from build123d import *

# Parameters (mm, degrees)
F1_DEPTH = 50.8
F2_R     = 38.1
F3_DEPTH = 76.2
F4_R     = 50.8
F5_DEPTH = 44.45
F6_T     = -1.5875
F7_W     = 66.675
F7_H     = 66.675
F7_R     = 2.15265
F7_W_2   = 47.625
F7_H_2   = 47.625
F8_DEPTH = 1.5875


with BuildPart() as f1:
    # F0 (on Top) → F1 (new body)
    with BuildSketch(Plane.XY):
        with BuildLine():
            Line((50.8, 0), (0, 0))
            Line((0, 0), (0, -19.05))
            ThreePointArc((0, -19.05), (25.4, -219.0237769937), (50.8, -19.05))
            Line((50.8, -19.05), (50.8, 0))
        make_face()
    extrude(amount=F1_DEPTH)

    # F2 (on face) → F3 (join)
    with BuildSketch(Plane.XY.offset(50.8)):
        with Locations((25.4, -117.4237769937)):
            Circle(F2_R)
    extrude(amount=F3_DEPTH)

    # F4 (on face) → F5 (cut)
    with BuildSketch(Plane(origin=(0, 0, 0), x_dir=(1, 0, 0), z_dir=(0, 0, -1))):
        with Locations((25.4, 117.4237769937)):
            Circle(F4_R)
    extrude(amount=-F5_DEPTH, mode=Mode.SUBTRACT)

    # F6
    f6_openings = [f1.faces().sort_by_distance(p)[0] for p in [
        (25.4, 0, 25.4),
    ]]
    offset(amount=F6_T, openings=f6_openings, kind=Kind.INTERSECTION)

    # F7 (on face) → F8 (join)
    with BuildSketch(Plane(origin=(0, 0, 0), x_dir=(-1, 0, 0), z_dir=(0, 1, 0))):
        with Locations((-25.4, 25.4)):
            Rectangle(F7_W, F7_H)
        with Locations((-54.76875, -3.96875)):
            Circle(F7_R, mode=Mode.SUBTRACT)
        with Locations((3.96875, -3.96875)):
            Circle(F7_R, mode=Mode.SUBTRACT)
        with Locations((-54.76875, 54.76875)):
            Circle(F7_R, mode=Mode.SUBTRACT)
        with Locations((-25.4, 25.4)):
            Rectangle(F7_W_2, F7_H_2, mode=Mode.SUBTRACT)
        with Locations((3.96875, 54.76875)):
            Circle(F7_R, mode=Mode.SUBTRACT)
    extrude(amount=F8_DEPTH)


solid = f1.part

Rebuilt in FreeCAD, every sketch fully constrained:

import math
import FreeCAD as App
import Part
import Sketcher
Q = App.Units.Quantity


def faces_at(feature, points):
    """Names of the faces that lie closest to the given points."""
    faces = feature.Shape.Faces
    near = lambda p: min(range(len(faces)), key=lambda i: faces[i].distToShape(Part.Vertex(*p))[0])
    return sorted({f"Face{near(p) + 1}" for p in points})

doc = App.newDocument("Part")
body = doc.addObject("PartDesign::Body", "Body")

sketch1 = body.newObject("Sketcher::SketchObject", "Sketch")
sketch1.AttachmentSupport = (doc.getObject("XY_Plane"), [""])
sketch1.MapMode = "FlatFace"
sketch1.addGeometry(Part.LineSegment(App.Vector(51, 0, 0), App.Vector(0, 0, 0)), False)
sketch1.addGeometry(Part.LineSegment(App.Vector(0, 0, 0), App.Vector(0, -19, 0)), False)
sketch1.addGeometry(Part.ArcOfCircle(Part.Circle(App.Vector(25, -117, 0), App.Vector(0, 0, 1), 102), math.radians(104), math.radians(436)), False)
sketch1.addGeometry(Part.LineSegment(App.Vector(51, -19, 0), App.Vector(51, 0, 0)), False)
sketch1.addConstraint(Sketcher.Constraint("Coincident", 0, 2, 1, 1))
sketch1.addConstraint(Sketcher.Constraint("Coincident", 1, 2, 2, 1))
sketch1.addConstraint(Sketcher.Constraint("Coincident", 2, 2, 3, 1))
sketch1.addConstraint(Sketcher.Constraint("Coincident", 3, 2, 0, 1))
sketch1.addConstraint(Sketcher.Constraint("Horizontal", 0))
sketch1.addConstraint(Sketcher.Constraint("Vertical", 1))
sketch1.addConstraint(Sketcher.Constraint("Vertical", 3))
sketch1.addConstraint(Sketcher.Constraint("Coincident", 0, 2, -1, 1))
sketch1.addConstraint(Sketcher.Constraint("Horizontal", 1, 2, 2, 2))
sketch1.addConstraint(Sketcher.Constraint("Radius", 2, Q("4 in")))
sketch1.addConstraint(Sketcher.Constraint("DistanceX", 0, 2, 0, 1, Q("2 in")))
sketch1.addConstraint(Sketcher.Constraint("DistanceY", 1, 2, 1, 1, Q("0.75 in")))
pad1 = body.newObject("PartDesign::Pad", "Pad")
pad1.Profile = sketch1
pad1.Length = Q("2 in")

sketch2 = body.newObject("Sketcher::SketchObject", "Sketch001")
sketch2.AttachmentSupport = (doc.getObject("XY_Plane"), [""])
sketch2.MapMode = "FlatFace"
sketch2.AttachmentOffset = App.Placement(App.Vector(0, 0, 2 * 25.4), App.Rotation())
sketch2.addGeometry(Part.Circle(App.Vector(25, -117, 0), App.Vector(0, 0, 1), 38), False)
sketch2.addConstraint(Sketcher.Constraint("Diameter", 0, Q("3 in")))
sketch2.addConstraint(Sketcher.Constraint("DistanceX", -1, 1, 0, 3, Q("1 in")))
sketch2.addConstraint(Sketcher.Constraint("DistanceY", 0, 3, -1, 1, 117.423777))
pad2 = body.newObject("PartDesign::Pad", "Pad001")
pad2.Profile = sketch2
pad2.Length = Q("3 in")

sketch3 = body.newObject("Sketcher::SketchObject", "Sketch002")
sketch3.AttachmentSupport = (doc.getObject("XY_Plane"), [""])
sketch3.MapMode = "FlatFace"
sketch3.addGeometry(Part.Circle(App.Vector(25, -117, 0), App.Vector(0, 0, 1), 51), False)
sketch3.addConstraint(Sketcher.Constraint("Diameter", 0, Q("4 in")))
sketch3.addConstraint(Sketcher.Constraint("DistanceX", -1, 1, 0, 3, Q("1 in")))
sketch3.addConstraint(Sketcher.Constraint("DistanceY", 0, 3, -1, 1, 117.423777))
pocket1 = body.newObject("PartDesign::Pocket", "Pocket")
pocket1.Profile = sketch3
pocket1.Length = Q("1.75 in")
pocket1.Reversed = True
doc.recompute()

thickness = body.newObject("PartDesign::Thickness", "Thickness")
thickness.Base = (pocket1, faces_at(pocket1, [(25.4, 0, 25.4)]))
thickness.Value = Q("0.0625 in")
thickness.Reversed = True
thickness.Join = "Intersection"

sketch4 = body.newObject("Sketcher::SketchObject", "Sketch003")
sketch4.AttachmentSupport = (doc.getObject("XZ_Plane"), [""])
sketch4.MapMode = "FlatFace"
sketch4.addGeometry(Part.LineSegment(App.Vector(58.7, 58.7, 0), App.Vector(58.7, -7.9, 0)), False)
sketch4.addGeometry(Part.LineSegment(App.Vector(58.7, -7.9, 0), App.Vector(-7.9, -7.9, 0)), False)
sketch4.addGeometry(Part.LineSegment(App.Vector(-7.9, -7.9, 0), App.Vector(-7.9, 58.7, 0)), False)
sketch4.addGeometry(Part.LineSegment(App.Vector(-7.9, 58.7, 0), App.Vector(58.7, 58.7, 0)), False)
sketch4.addGeometry(Part.Circle(App.Vector(54.8, -4, 0), App.Vector(0, 0, 1), 2.2), False)
sketch4.addGeometry(Part.LineSegment(App.Vector(1.6, 1.6, 0), App.Vector(49.2, 1.6, 0)), False)
sketch4.addGeometry(Part.LineSegment(App.Vector(49.2, 1.6, 0), App.Vector(49.2, 49.2, 0)), False)
sketch4.addGeometry(Part.LineSegment(App.Vector(49.2, 49.2, 0), App.Vector(1.6, 49.2, 0)), False)
sketch4.addGeometry(Part.LineSegment(App.Vector(1.6, 49.2, 0), App.Vector(1.6, 1.6, 0)), False)
sketch4.addGeometry(Part.Circle(App.Vector(-4, -4, 0), App.Vector(0, 0, 1), 2.2), False)
sketch4.addGeometry(Part.Circle(App.Vector(54.8, 54.8, 0), App.Vector(0, 0, 1), 2.2), False)
sketch4.addGeometry(Part.Circle(App.Vector(-4, 54.8, 0), App.Vector(0, 0, 1), 2.2), False)
sketch4.addConstraint(Sketcher.Constraint("Coincident", 0, 2, 1, 1))
sketch4.addConstraint(Sketcher.Constraint("Coincident", 1, 2, 2, 1))
sketch4.addConstraint(Sketcher.Constraint("Coincident", 2, 2, 3, 1))
sketch4.addConstraint(Sketcher.Constraint("Coincident", 3, 2, 0, 1))
sketch4.addConstraint(Sketcher.Constraint("Coincident", 5, 2, 6, 1))
sketch4.addConstraint(Sketcher.Constraint("Coincident", 6, 2, 7, 1))
sketch4.addConstraint(Sketcher.Constraint("Coincident", 7, 2, 8, 1))
sketch4.addConstraint(Sketcher.Constraint("Coincident", 8, 2, 5, 1))
sketch4.addConstraint(Sketcher.Constraint("Vertical", 0))
sketch4.addConstraint(Sketcher.Constraint("Horizontal", 1))
sketch4.addConstraint(Sketcher.Constraint("Vertical", 2))
sketch4.addConstraint(Sketcher.Constraint("Horizontal", 3))
sketch4.addConstraint(Sketcher.Constraint("Horizontal", 5))
sketch4.addConstraint(Sketcher.Constraint("Vertical", 6))
sketch4.addConstraint(Sketcher.Constraint("Horizontal", 7))
sketch4.addConstraint(Sketcher.Constraint("Vertical", 8))
sketch4.addConstraint(Sketcher.Constraint("Equal", 4, 9))
sketch4.addConstraint(Sketcher.Constraint("Equal", 9, 10))
sketch4.addConstraint(Sketcher.Constraint("Equal", 10, 11))
sketch4.addConstraint(Sketcher.Constraint("Horizontal", 4, 3, 9, 3))
sketch4.addConstraint(Sketcher.Constraint("Horizontal", 10, 3, 11, 3))
sketch4.addConstraint(Sketcher.Constraint("Vertical", 4, 3, 10, 3))
sketch4.addConstraint(Sketcher.Constraint("Vertical", 9, 3, 11, 3))
sketch4.addConstraint(Sketcher.Constraint("Equal", 3, 0))
sketch4.addConstraint(Sketcher.Constraint("Equal", 7, 6))
sketch4.addConstraint(Sketcher.Constraint("Diameter", 4, Q("0.1695 in")))
sketch4.addConstraint(Sketcher.Constraint("DistanceX", 1, 2, 1, 1, Q("2.625 in")))
sketch4.addConstraint(Sketcher.Constraint("DistanceX", 5, 1, 5, 2, Q("1.875 in")))
sketch4.addConstraint(Sketcher.Constraint("DistanceX", 1, 2, 5, 2, Q("2.25 in")))
sketch4.addConstraint(Sketcher.Constraint("DistanceX", -1, 1, 4, 3, Q("2.15625 in")))
sketch4.addConstraint(Sketcher.Constraint("DistanceY", 4, 3, -1, 1, Q("0.15625 in")))
sketch4.addConstraint(Sketcher.Constraint("DistanceX", 9, 3, -1, 1, Q("0.15625 in")))
sketch4.addConstraint(Sketcher.Constraint("DistanceY", -1, 1, 10, 3, Q("2.15625 in")))
sketch4.addConstraint(Sketcher.Constraint("DistanceX", -1, 1, 0, 2, Q("2.3125 in")))
sketch4.addConstraint(Sketcher.Constraint("DistanceY", 0, 2, -1, 1, Q("0.3125 in")))
sketch4.addConstraint(Sketcher.Constraint("DistanceY", -1, 1, 5, 2, Q("0.0625 in")))
pad3 = body.newObject("PartDesign::Pad", "Pad002")
pad3.Profile = sketch4
pad3.Length = Q("0.0625 in")
pad3.Reversed = True

doc.recompute()
